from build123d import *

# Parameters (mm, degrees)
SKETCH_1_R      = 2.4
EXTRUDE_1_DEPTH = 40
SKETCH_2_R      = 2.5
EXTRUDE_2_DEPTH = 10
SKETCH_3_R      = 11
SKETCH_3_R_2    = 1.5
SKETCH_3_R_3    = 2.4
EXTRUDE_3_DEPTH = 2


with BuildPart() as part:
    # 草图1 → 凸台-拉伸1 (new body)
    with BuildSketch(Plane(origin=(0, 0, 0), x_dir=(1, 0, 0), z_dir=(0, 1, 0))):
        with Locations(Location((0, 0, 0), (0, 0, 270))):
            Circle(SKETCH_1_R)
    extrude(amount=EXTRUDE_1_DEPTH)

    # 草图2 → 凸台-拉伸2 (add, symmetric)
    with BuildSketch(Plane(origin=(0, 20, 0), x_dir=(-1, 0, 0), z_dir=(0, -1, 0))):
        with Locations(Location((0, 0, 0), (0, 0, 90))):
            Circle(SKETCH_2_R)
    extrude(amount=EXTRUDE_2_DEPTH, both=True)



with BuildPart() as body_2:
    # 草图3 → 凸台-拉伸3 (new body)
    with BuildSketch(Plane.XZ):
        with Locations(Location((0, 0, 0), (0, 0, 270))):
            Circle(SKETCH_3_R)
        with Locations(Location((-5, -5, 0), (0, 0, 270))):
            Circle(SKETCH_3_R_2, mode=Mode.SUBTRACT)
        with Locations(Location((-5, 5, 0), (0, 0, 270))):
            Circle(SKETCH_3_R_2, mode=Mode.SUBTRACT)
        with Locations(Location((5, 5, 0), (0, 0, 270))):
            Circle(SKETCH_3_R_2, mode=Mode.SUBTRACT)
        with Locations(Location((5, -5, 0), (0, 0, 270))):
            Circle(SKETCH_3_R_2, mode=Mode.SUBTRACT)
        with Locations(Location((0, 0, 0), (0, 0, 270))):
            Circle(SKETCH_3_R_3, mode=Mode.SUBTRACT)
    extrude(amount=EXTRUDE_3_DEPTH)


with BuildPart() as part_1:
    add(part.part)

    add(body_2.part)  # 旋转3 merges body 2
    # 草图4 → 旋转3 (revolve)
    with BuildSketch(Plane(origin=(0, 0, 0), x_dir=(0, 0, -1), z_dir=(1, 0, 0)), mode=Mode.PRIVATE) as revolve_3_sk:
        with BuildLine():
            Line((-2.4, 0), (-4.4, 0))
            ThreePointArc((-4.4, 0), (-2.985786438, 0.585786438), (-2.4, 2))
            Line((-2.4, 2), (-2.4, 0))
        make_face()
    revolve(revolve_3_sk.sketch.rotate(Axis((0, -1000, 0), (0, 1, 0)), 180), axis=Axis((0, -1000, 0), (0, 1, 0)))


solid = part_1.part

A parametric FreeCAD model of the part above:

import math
import FreeCAD as App
import Part
import Sketcher

doc = App.newDocument("Part")
body = doc.addObject("PartDesign::Body", "Body")

# Sketch on XZ plane
sketch1 = doc.addObject("Sketcher::SketchObject", "Sketch")
body.addObject(sketch1)
sketch1.AttachmentSupport = (doc.XZ_Plane, [""])
sketch1.MapMode = "FlatFace"
sketch1.addGeometry(Part.Circle(App.Vector(0, 0, 0), App.Vector(0, 0, 1), 2.4), False)
sketch1.addConstraint([
    Sketcher.Constraint("Coincident", 0, 3, -1, 1),
    Sketcher.Constraint("Diameter", 0, 4.8),
])
pad1 = doc.addObject("PartDesign::Pad", "Pad")
body.addObject(pad1)
pad1.Profile = sketch1
pad1.Length = 40
pad1.Reversed = True

# Sketch on XZ plane
sketch2 = doc.addObject("Sketcher::SketchObject", "Sketch001")
body.addObject(sketch2)
sketch2.AttachmentSupport = (doc.XZ_Plane, [""])
sketch2.MapMode = "FlatFace"
sketch2.AttachmentOffset = App.Placement(App.Vector(0, 0, -20), App.Rotation())
sketch2.addGeometry(Part.Circle(App.Vector(0, 0, 0), App.Vector(0, 0, 1), 2.5), False)
sketch2.addConstraint([
    Sketcher.Constraint("Coincident", 0, 3, -1, 1),
    Sketcher.Constraint("Diameter", 0, 5.0),
])
pad2 = doc.addObject("PartDesign::Pad", "Pad001")
body.addObject(pad2)
pad2.Profile = sketch2
pad2.Length = 20
pad2.Midplane = True
body2 = doc.addObject("PartDesign::Body", "Body001")

# Sketch on XZ plane
sketch3 = doc.addObject("Sketcher::SketchObject", "Sketch002")
body2.addObject(sketch3)
sketch3.AttachmentSupport = (doc.getObject("XZ_Plane001"), [""])
sketch3.MapMode = "FlatFace"
sketch3.addGeometry([
    Part.Circle(App.Vector(0, 0, 0), App.Vector(0, 0, 1), 11),  # 0
    Part.Circle(App.Vector(-5, 5, 0), App.Vector(0, 0, 1), 1.5),  # 1
    Part.Circle(App.Vector(-5, -5, 0), App.Vector(0, 0, 1), 1.5),  # 2
    Part.Circle(App.Vector(0, 0, 0), App.Vector(0, 0, 1), 2.4),  # 3
    Part.Circle(App.Vector(5, 5, 0), App.Vector(0, 0, 1), 1.5),  # 4
    Part.Circle(App.Vector(5, -5, 0), App.Vector(0, 0, 1), 1.5),  # 5
], False)
sketch3.addConstraint([
    Sketcher.Constraint("Coincident", 0, 3, -1, 1),
    Sketcher.Constraint("Coincident", 3, 3, -1, 1),
    Sketcher.Constraint("Equal", 1, 2),
    Sketcher.Constraint("Equal", 2, 4),
    Sketcher.Constraint("Equal", 4, 5),
    Sketcher.Constraint("Symmetric", 2, 3, 4, 3, -1, 1),
    Sketcher.Constraint("Symmetric", 1, 3, 5, 3, -1, 1),
    Sketcher.Constraint("Symmetric", 1, 3, 4, 3, -2),
    Sketcher.Constraint("Diameter", 0, 22.0),
    Sketcher.Constraint("Diameter", 1, 3.0),
    Sketcher.Constraint("Diameter", 3, 4.8),
    Sketcher.Constraint("DistanceX", 1, 3, -1, 1, 5.0),
    Sketcher.Constraint("DistanceY", -1, 1, 1, 3, 5.0),
])
pad3 = doc.addObject("PartDesign::Pad", "Pad002")
body2.addObject(pad3)
pad3.Profile = sketch3
pad3.Length = 2
body.AllowCompound = True
doc.recompute()

boolean = doc.addObject("PartDesign::Boolean", "Boolean")
body.addObject(boolean)
boolean.Type = "Fuse"
boolean.addObjects([body2])

# Sketch on YZ plane
sketch4 = doc.addObject("Sketcher::SketchObject", "Sketch003")
body.addObject(sketch4)
sketch4.AttachmentSupport = (doc.YZ_Plane, [""])
sketch4.MapMode = "FlatFace"
sketch4.addGeometry([
    Part.LineSegment(App.Vector(0, 4.4, 0), App.Vector(0, 2.4, 0)),
    Part.LineSegment(App.Vector(0, 2.4, 0), App.Vector(2, 2.4, 0)),
    Part.ArcOfCircle(Part.Circle(App.Vector(2, 4.4, 0), App.Vector(0, 0, 1), 2), math.radians(-180), math.radians(-90)),
], False)
sketch4.addConstraint([
    Sketcher.Constraint("Coincident", 0, 2, 1, 1),
    Sketcher.Constraint("Tangent", 1, 2, 2, 2),
    Sketcher.Constraint("Tangent", 2, 1, 0, 1),
    Sketcher.Constraint("Vertical", 0),
    Sketcher.Constraint("Horizontal", 1),
    Sketcher.Constraint("PointOnObject", 0, 2, -2),
    Sketcher.Constraint("Radius", 2, 2.0),
    Sketcher.Constraint("DistanceY", -1, 1, 2, 3, 4.4),
])
revolution = doc.addObject("PartDesign::Revolution", "Revolution")
body.addObject(revolution)
revolution.Profile = sketch4
revolution.ReferenceAxis = (sketch4, ["H_Axis"])
revolution.Angle = 360

doc.recompute()
